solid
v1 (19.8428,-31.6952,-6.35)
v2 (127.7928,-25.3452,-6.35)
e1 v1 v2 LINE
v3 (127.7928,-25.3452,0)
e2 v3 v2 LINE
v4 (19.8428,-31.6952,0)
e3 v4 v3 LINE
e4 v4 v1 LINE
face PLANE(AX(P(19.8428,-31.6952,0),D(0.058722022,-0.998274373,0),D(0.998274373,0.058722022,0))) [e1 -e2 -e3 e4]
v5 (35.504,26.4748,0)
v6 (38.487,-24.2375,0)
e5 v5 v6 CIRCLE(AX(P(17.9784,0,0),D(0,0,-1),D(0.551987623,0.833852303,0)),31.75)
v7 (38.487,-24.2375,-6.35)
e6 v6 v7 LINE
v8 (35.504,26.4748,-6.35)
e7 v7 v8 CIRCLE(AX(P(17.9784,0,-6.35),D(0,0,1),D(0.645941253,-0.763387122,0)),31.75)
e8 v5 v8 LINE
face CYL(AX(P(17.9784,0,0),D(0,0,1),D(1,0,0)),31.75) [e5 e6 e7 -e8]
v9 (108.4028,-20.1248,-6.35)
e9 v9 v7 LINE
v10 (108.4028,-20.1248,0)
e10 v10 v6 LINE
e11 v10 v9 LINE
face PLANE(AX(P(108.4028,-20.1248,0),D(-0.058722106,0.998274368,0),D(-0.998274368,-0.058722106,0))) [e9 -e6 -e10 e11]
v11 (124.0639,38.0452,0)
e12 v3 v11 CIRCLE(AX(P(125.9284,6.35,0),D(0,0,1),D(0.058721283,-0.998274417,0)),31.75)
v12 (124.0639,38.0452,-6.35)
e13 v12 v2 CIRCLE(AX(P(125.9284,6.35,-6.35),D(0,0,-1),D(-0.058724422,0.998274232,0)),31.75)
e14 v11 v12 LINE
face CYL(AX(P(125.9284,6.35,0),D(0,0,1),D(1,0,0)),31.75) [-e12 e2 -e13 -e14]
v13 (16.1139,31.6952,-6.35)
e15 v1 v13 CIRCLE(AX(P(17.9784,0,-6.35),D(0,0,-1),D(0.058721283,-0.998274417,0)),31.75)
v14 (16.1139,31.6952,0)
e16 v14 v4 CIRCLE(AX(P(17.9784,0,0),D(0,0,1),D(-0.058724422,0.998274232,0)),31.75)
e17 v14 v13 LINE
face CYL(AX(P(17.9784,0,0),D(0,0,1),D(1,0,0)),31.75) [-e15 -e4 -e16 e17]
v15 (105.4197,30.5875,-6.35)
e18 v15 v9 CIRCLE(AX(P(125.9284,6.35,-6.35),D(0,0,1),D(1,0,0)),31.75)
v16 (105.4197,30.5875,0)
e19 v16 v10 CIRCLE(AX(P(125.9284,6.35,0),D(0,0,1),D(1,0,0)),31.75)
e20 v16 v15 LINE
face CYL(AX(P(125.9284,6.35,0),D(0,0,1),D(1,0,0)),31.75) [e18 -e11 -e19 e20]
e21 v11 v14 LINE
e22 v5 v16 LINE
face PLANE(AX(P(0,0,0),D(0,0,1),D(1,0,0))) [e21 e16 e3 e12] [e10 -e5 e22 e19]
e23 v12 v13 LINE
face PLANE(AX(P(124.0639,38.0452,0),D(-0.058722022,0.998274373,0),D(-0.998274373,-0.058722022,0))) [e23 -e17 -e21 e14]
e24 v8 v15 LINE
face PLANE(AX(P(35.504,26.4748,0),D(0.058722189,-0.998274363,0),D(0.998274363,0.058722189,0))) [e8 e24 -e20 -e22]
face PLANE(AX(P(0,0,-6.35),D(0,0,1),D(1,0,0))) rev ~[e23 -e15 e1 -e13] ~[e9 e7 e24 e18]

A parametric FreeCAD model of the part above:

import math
import FreeCAD as App
import Part
import Sketcher

V = App.Vector
Q = App.Units.Quantity

doc = App.newDocument("Part")
body = doc.addObject("PartDesign::Body", "Body")

sketch1 = body.newObject("Sketcher::SketchObject", "Sketch")
sketch1.AttachmentSupport = (doc.getObject("XY_Plane"), [""])
sketch1.MapMode = "FlatFace"
sketch1.addGeometry([
    Part.ArcOfCircle(Part.Circle(V(18, 0, 0), V(0, 0, 1), 32), math.radians(93), math.radians(273)),
    Part.LineSegment(V(20, -32, 0), V(128, -25, 0)),
    Part.ArcOfCircle(Part.Circle(V(126, 6, 0), V(0, 0, 1), 32), math.radians(-87), math.radians(93)),
    Part.LineSegment(V(124, 38, 0), V(16, 32, 0)),
    Part.ArcOfCircle(Part.Circle(V(18, 0, 0), V(0, 0, 1), 32), math.radians(-50), math.radians(56)),
    Part.LineSegment(V(36, 26, 0), V(105, 31, 0)),
    Part.ArcOfCircle(Part.Circle(V(126, 6, 0), V(0, 0, 1), 32), math.radians(130), math.radians(236)),
    Part.LineSegment(V(108, -20, 0), V(38, -24, 0)),
], False)
sketch1.addConstraint([
    Sketcher.Constraint("Tangent", 0, 2, 1, 1),
    Sketcher.Constraint("Tangent", 1, 2, 2, 1),
    Sketcher.Constraint("Tangent", 2, 2, 3, 1),
    Sketcher.Constraint("Tangent", 3, 2, 0, 1),
    Sketcher.Constraint("Coincident", 4, 2, 5, 1),
    Sketcher.Constraint("Coincident", 5, 2, 6, 1),
    Sketcher.Constraint("Coincident", 6, 2, 7, 1),
    Sketcher.Constraint("Coincident", 7, 2, 4, 1),
    Sketcher.Constraint("Coincident", 4, 3, 0, 3),
    Sketcher.Constraint("Coincident", 6, 3, 2, 3),
    Sketcher.Constraint("Equal", 0, 2),
    Sketcher.Constraint("Equal", 2, 4),
    Sketcher.Constraint("Equal", 4, 6),
    Sketcher.Constraint("PointOnObject", 0, 3, -1),
    Sketcher.Constraint("Parallel", 3, 5),
    Sketcher.Constraint("Parallel", 5, 7),
    Sketcher.Constraint("Equal", 5, 7),
    Sketcher.Constraint("Radius", 0, Q("1.25 in")),
    Sketcher.Constraint("DistanceY", -1, 1, 2, 3, Q("0.25 in")),
    Sketcher.Constraint("DistanceX", 0, 3, 2, 3, Q("4.25 in")),
    Sketcher.Constraint("DistanceX", -1, 1, 0, 3, Q("0.7078 in")),
    Sketcher.Constraint("DistanceX", -1, 1, 4, 2, Q("1.3978 in")),
])
pad1 = body.newObject("PartDesign::Pad", "Pad")
pad1.Profile = sketch1
pad1.Length = Q("0.25 in")
pad1.Reversed = True

doc.recompute()
